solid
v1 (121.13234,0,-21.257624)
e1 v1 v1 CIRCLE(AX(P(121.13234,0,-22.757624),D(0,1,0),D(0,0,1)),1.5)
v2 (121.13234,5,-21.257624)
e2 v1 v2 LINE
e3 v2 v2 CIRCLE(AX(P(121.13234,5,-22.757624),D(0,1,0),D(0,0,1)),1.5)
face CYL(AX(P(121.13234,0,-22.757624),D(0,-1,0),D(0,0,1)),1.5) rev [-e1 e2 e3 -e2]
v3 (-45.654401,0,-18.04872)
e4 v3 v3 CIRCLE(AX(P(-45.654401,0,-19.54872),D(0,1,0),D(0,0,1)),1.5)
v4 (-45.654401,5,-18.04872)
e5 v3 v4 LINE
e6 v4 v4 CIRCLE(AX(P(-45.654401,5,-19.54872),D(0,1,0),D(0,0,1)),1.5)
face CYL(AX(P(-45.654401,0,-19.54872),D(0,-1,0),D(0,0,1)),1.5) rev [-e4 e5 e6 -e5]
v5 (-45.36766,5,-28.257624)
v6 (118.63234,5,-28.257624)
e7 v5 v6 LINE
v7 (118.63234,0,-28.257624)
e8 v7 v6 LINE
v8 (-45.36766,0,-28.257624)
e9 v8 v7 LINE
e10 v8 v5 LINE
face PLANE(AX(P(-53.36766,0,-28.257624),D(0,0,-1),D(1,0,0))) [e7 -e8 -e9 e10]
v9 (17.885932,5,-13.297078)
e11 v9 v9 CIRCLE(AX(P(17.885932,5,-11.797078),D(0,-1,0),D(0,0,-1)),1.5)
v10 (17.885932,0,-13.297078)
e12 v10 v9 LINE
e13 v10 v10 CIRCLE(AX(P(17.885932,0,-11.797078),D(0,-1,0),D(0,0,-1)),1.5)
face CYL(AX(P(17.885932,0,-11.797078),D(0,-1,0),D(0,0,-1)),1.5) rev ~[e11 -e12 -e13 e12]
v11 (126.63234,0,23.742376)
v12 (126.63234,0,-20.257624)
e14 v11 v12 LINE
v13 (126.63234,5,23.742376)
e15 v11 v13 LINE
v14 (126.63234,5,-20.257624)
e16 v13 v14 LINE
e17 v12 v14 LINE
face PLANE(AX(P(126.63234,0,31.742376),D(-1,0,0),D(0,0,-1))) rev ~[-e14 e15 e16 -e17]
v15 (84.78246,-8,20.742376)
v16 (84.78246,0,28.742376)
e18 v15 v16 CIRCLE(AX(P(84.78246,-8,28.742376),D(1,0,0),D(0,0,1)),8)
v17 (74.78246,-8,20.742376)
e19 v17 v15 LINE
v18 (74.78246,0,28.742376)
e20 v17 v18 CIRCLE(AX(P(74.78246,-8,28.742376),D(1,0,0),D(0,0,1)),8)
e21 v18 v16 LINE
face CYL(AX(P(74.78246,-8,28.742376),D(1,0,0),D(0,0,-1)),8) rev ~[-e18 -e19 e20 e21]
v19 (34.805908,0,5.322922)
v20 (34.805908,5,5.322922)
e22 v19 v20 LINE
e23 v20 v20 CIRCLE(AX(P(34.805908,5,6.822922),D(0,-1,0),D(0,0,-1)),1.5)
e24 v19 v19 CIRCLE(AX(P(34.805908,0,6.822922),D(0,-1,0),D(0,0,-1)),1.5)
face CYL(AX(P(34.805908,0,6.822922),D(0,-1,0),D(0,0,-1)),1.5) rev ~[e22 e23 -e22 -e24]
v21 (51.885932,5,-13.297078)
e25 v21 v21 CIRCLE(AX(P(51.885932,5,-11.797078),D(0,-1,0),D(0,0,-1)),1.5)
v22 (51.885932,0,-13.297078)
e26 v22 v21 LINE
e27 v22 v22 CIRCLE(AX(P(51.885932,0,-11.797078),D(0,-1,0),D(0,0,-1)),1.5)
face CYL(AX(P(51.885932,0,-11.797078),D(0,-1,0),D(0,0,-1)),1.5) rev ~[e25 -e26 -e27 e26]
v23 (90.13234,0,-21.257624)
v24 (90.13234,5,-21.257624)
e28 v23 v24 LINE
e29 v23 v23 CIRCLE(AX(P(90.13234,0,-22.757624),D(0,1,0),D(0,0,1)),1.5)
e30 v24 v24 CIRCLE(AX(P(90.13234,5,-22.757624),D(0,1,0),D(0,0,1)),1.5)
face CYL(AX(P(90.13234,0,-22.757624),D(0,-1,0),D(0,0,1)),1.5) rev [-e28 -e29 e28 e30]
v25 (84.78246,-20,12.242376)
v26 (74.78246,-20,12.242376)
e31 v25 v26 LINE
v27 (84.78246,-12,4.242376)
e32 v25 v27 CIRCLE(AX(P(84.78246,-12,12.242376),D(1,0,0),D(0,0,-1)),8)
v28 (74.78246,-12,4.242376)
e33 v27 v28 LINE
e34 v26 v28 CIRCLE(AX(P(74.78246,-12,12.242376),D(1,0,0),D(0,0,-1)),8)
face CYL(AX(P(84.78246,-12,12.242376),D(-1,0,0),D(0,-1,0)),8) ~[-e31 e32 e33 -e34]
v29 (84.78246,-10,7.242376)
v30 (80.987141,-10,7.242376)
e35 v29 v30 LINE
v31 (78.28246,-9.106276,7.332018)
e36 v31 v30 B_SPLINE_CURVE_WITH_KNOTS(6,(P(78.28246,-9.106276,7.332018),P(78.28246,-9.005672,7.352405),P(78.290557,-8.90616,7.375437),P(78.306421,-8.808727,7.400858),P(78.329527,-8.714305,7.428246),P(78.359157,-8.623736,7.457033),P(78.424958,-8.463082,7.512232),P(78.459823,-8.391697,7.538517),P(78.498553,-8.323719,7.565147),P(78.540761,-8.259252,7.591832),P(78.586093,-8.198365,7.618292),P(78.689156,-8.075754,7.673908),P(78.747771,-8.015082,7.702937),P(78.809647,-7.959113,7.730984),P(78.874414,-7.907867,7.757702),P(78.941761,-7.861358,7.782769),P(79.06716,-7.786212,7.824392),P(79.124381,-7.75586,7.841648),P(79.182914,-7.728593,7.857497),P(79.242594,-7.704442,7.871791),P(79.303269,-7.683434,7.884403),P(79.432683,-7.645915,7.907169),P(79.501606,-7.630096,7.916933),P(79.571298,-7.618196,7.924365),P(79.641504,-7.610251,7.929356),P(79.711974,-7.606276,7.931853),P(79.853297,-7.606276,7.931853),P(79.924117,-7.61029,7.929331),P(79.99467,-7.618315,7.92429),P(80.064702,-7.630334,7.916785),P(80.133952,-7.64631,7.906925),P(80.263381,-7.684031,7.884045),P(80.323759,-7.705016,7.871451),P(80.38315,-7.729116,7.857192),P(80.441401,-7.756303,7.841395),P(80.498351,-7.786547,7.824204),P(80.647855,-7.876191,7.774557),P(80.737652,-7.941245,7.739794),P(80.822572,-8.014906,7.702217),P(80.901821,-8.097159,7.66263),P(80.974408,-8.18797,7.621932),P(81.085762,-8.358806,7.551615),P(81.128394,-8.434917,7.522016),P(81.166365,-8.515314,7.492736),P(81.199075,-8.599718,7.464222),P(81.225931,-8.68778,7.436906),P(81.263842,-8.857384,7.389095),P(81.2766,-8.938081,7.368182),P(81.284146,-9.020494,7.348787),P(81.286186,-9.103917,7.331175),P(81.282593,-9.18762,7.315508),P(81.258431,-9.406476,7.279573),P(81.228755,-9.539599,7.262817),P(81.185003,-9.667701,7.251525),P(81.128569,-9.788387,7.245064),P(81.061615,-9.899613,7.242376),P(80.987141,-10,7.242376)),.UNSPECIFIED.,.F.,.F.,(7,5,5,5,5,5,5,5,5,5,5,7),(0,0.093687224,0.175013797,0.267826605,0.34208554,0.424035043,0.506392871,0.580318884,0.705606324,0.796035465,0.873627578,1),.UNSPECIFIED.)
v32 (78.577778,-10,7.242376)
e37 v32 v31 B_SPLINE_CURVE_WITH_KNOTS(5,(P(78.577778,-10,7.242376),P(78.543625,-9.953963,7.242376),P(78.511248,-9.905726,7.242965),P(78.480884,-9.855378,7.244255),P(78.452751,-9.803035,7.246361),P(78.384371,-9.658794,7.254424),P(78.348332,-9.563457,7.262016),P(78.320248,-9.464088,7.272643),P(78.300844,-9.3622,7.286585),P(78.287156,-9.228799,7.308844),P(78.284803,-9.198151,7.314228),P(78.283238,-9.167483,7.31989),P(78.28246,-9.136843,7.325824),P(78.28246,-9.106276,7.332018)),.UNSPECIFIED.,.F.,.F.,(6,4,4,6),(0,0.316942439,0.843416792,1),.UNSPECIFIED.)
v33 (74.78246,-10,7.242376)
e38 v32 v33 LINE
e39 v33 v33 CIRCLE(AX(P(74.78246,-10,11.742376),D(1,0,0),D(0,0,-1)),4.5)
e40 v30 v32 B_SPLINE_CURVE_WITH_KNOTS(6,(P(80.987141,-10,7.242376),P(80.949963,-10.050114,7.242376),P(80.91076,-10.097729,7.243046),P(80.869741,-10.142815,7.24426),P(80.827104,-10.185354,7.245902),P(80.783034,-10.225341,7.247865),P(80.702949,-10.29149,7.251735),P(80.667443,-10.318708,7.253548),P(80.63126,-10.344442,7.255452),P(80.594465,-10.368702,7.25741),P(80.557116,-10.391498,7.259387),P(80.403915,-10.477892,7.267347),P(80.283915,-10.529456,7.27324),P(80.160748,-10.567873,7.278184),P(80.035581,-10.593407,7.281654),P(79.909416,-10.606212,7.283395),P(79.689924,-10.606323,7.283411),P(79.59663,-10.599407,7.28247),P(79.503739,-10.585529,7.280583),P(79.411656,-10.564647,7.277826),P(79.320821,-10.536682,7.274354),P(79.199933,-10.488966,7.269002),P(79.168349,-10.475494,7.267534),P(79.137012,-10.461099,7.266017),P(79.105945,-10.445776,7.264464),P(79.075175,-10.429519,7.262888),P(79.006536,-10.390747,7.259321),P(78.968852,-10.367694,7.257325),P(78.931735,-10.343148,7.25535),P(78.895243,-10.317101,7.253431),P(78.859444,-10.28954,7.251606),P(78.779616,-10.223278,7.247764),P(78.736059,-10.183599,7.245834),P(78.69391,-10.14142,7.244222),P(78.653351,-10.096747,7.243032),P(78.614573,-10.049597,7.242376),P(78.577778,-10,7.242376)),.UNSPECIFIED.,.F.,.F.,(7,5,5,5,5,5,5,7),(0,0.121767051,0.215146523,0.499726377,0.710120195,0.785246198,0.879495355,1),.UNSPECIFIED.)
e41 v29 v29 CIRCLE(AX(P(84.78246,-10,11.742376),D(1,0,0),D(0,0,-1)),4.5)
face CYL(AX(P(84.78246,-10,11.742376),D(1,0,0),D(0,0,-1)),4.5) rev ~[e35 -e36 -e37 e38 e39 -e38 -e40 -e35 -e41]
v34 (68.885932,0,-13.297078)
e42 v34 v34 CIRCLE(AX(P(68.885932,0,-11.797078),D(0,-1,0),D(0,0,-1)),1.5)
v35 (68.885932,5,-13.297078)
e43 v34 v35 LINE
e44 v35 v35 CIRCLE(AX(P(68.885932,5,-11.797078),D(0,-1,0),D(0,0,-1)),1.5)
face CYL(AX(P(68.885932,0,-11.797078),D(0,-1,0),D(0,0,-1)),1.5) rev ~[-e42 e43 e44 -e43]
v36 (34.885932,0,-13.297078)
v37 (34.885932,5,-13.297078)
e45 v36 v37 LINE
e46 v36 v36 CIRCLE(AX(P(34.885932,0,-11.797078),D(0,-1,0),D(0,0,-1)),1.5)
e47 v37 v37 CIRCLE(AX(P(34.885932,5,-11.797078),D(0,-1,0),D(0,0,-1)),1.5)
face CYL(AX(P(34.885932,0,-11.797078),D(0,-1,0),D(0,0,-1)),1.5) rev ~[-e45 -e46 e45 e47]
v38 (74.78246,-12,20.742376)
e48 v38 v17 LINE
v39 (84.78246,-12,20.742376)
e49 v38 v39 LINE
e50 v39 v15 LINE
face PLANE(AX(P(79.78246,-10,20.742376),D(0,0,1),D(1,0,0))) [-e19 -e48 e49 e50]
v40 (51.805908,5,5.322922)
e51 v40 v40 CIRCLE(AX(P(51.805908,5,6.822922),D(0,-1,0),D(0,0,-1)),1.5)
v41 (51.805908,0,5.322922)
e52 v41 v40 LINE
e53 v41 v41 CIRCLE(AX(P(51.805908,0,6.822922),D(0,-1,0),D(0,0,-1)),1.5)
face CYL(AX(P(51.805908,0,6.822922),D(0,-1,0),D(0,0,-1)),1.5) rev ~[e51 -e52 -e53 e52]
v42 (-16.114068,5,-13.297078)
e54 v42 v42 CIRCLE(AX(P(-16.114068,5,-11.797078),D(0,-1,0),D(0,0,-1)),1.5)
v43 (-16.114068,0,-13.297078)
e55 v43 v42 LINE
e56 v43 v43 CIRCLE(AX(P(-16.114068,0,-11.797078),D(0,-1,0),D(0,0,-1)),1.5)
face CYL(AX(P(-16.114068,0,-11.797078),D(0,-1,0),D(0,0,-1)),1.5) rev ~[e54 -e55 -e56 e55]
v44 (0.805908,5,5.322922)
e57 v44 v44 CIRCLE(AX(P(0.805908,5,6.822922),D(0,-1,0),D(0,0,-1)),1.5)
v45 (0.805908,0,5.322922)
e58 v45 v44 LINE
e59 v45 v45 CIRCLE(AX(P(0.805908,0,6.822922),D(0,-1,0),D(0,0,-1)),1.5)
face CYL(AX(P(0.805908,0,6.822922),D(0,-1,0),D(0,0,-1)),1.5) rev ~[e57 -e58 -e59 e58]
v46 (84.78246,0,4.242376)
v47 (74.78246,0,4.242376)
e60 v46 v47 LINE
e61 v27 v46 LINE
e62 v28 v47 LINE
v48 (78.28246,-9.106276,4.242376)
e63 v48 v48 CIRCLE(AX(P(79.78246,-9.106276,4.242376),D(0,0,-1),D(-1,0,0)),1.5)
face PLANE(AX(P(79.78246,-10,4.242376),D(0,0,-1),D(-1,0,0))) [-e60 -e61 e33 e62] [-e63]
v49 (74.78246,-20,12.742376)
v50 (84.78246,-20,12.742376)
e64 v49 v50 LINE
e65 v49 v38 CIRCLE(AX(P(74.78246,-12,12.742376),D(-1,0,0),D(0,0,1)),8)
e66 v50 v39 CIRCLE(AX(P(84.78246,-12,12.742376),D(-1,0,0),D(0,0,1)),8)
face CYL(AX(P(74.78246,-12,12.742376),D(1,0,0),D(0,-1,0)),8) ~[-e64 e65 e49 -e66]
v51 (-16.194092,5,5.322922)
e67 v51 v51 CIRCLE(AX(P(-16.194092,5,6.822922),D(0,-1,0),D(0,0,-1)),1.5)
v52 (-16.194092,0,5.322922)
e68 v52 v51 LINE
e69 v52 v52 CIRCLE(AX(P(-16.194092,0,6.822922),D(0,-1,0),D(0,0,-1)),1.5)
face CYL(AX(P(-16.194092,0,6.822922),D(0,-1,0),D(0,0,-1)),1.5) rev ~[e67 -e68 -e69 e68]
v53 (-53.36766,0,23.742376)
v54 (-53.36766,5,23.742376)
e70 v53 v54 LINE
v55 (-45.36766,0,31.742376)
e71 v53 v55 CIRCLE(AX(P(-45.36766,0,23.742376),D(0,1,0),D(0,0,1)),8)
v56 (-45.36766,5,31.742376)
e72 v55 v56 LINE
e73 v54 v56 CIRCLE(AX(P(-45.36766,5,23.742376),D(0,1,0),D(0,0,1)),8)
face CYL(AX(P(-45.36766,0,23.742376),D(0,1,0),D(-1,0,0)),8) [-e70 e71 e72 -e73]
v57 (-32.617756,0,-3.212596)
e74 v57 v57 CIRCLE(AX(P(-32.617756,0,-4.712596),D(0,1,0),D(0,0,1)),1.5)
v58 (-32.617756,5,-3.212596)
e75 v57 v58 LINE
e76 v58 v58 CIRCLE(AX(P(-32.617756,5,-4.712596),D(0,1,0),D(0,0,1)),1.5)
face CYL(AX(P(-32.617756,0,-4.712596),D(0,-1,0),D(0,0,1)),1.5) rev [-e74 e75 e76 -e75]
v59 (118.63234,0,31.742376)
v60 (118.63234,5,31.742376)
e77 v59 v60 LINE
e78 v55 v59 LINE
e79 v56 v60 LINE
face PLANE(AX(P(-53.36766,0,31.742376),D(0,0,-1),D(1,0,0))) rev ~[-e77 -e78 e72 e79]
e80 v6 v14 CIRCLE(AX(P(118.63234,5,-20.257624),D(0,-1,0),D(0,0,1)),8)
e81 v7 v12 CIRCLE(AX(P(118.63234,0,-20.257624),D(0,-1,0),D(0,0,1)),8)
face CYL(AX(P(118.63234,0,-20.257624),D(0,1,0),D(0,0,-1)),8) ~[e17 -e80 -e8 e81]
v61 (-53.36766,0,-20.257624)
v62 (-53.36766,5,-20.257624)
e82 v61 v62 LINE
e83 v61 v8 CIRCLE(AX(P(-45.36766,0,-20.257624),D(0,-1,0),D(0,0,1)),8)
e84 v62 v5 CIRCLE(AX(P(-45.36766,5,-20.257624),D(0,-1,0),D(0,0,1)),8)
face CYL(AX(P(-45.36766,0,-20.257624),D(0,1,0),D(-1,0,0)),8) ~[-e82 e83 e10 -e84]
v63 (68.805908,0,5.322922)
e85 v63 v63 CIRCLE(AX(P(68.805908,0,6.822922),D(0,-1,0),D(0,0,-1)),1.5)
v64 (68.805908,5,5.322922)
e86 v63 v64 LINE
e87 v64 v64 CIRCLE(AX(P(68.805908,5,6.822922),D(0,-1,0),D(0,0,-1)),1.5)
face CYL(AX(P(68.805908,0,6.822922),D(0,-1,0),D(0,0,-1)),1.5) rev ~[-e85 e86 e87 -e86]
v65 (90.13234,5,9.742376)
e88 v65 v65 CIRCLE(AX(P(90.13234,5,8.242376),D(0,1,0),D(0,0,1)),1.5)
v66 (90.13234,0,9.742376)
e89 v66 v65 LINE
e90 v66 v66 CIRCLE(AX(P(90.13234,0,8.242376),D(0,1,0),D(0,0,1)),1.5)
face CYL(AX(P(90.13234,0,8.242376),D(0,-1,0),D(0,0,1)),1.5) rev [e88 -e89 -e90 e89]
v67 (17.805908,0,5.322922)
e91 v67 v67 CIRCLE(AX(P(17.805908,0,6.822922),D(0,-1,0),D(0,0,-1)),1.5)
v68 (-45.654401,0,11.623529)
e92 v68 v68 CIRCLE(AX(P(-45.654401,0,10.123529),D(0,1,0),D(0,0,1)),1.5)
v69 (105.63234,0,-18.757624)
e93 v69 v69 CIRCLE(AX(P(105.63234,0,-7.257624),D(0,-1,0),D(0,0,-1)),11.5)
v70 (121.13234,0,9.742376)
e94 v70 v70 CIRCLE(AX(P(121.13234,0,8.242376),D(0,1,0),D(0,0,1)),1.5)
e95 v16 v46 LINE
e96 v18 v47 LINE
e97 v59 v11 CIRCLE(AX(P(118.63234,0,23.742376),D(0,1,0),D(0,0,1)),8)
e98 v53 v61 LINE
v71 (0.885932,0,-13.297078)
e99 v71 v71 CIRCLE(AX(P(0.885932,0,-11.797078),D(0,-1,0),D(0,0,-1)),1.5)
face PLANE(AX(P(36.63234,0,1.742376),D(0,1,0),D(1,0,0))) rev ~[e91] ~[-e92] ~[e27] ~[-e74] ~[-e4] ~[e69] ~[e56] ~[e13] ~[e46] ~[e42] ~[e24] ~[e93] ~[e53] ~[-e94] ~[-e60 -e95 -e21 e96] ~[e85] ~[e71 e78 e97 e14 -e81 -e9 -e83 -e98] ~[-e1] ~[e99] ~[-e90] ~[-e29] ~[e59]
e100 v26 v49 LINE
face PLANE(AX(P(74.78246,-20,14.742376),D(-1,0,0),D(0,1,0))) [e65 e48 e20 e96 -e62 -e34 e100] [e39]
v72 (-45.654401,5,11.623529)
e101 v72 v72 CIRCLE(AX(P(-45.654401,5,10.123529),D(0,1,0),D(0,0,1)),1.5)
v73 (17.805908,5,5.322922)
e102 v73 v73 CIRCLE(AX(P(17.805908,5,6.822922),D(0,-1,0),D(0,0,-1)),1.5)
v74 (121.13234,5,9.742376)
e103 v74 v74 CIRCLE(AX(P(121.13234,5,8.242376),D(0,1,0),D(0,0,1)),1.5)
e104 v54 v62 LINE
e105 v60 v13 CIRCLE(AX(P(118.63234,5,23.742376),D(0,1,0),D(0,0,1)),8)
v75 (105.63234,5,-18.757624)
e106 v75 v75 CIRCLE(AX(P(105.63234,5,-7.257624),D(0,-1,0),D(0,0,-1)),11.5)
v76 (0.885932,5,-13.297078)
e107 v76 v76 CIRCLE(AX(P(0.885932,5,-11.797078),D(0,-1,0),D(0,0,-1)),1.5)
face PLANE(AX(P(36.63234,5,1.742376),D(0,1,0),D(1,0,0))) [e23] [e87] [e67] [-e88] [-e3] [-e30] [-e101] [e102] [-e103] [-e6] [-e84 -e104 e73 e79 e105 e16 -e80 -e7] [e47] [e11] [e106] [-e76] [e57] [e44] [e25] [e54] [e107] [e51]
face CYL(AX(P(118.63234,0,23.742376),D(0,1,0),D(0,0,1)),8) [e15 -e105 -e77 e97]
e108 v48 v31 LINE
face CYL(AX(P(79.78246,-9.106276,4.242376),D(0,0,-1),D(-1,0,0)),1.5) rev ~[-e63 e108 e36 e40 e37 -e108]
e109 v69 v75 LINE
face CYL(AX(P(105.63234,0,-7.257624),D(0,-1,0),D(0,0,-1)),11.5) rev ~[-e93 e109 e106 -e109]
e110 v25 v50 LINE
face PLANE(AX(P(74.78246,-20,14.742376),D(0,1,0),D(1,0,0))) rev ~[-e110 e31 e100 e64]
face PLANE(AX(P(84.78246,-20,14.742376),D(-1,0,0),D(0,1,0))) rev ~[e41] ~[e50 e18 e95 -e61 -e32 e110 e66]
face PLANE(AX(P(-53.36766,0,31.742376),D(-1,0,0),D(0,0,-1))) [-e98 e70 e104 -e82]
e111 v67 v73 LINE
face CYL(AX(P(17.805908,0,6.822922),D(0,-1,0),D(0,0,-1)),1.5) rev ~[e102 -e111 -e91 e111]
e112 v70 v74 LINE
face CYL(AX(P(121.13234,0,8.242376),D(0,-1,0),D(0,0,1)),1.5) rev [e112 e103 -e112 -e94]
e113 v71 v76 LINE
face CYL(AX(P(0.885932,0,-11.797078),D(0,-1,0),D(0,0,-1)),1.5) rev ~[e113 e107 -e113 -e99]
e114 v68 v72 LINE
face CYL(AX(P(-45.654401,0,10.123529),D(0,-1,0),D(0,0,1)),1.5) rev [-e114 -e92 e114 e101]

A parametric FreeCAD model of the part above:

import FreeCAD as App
import Part
import Sketcher
Q = App.Units.Quantity


def edges_at(feature, points):
    """Names of the edges that pass closest to the given points."""
    edges = feature.Shape.Edges
    near = lambda p: min(range(len(edges)), key=lambda i: edges[i].distToShape(Part.Vertex(*p))[0])
    return sorted({f"Edge{near(p) + 1}" for p in points})


def add_polygon(sketch, points):
    """Adds a closed chain of lines whose ends are joined by coincident constraints."""
    first, n = sketch.GeometryCount, len(points)
    for a, b in zip(points, points[1:] + points[:1]):
        sketch.addGeometry(Part.LineSegment(App.Vector(*a, 0), App.Vector(*b, 0)), False)
    for i in range(n):
        sketch.addConstraint(Sketcher.Constraint("Coincident", first + i, 2, first + (i + 1) % n, 1))

doc = App.newDocument("Part")
body = doc.addObject("PartDesign::Body", "Body")

# Sketch on XZ plane
sketch1 = body.newObject("Sketcher::SketchObject", "Sketch")
sketch1.AttachmentSupport = (doc.getObject("XZ_Plane"), [""])
sketch1.MapMode = "FlatFace"
add_polygon(sketch1, [(-53.4, -28.3), (-53.4, 31.7), (126.6, 31.7), (126.6, -28.3)])  # lines 0-3
sketch1.addGeometry(Part.Circle(App.Vector(-45.7, 10.1, 0), App.Vector(0, 0, 1), 1.5), False)  # 4
sketch1.addGeometry(Part.Circle(App.Vector(-32.6, -4.7, 0), App.Vector(0, 0, 1), 1.5), False)  # 5
sketch1.addGeometry(Part.Circle(App.Vector(90.1, 8.2, 0), App.Vector(0, 0, 1), 1.5), False)  # 6
sketch1.addGeometry(Part.Circle(App.Vector(121.1, 8.2, 0), App.Vector(0, 0, 1), 1.5), False)  # 7
sketch1.addGeometry(Part.Circle(App.Vector(-45.7, -19.5, 0), App.Vector(0, 0, 1), 1.5), False)  # 8
sketch1.addGeometry(Part.Circle(App.Vector(105.6, -7.3, 0), App.Vector(0, 0, 1), 11), False)  # 9
sketch1.addGeometry(Part.Circle(App.Vector(90.1, -22.8, 0), App.Vector(0, 0, 1), 1.5), False)  # 10
sketch1.addGeometry(Part.Circle(App.Vector(121.1, -22.8, 0), App.Vector(0, 0, 1), 1.5), False)  # 11
sketch1.addConstraint([
    Sketcher.Constraint("Vertical", 0),
    Sketcher.Constraint("Horizontal", 1),
    Sketcher.Constraint("Vertical", 2),
    Sketcher.Constraint("Horizontal", 3),
    Sketcher.Constraint("Equal", 4, 5),
    Sketcher.Constraint("Equal", 5, 6),
    Sketcher.Constraint("Equal", 6, 7),
    Sketcher.Constraint("Equal", 7, 8),
    Sketcher.Constraint("Equal", 8, 10),
    Sketcher.Constraint("Equal", 10, 11),
    Sketcher.Constraint("Horizontal", 6, 3, 7, 3),
    Sketcher.Constraint("Horizontal", 10, 3, 11, 3),
    Sketcher.Constraint("Vertical", 4, 3, 8, 3),
    Sketcher.Constraint("Vertical", 6, 3, 10, 3),
    Sketcher.Constraint("Vertical", 7, 3, 11, 3),
    Sketcher.Constraint("Diameter", 4, Q("3 mm")),
    Sketcher.Constraint("Diameter", 9, Q("22 mm")),
    Sketcher.Constraint("DistanceX", 1, 1, 1, 2, Q("180 mm")),
    Sketcher.Constraint("DistanceY", 0, 1, 0, 2, Q("60 mm")),
    Sketcher.Constraint("DistanceX", 6, 3, 7, 3, Q("31 mm")),
    Sketcher.Constraint("DistanceY", 10, 3, 6, 3, Q("31 mm")),
    Sketcher.Constraint("DistanceX", 9, 3, 1, 2, Q("21 mm")),
    Sketcher.Constraint("DistanceY", 9, 3, 1, 2, Q("39 mm")),
    Sketcher.Constraint("DistanceX", 6, 3, 9, 3, Q("15.5 mm")),
    Sketcher.Constraint("DistanceY", 9, 3, 6, 3, Q("15.5 mm")),
    Sketcher.Constraint("DistanceX", 4, 3, -1, 1, Q("45.654401 mm")),
    Sketcher.Constraint("DistanceY", -1, 1, 4, 3, Q("10.123529 mm")),
    Sketcher.Constraint("DistanceX", -1, 1, 6, 3, Q("90.13234 mm")),
    Sketcher.Constraint("DistanceY", 8, 3, -1, 1, Q("19.54872 mm")),
    Sketcher.Constraint("DistanceY", 5, 3, 6, 3, Q("12.954972 mm")),
    Sketcher.Constraint("DistanceX", 5, 3, -1, 1, Q("32.617756 mm")),
    Sketcher.Constraint("DistanceY", 5, 3, -1, 1, Q("4.712596 mm")),
])
pad1 = body.newObject("PartDesign::Pad", "Pad")
pad1.Profile = sketch1
pad1.Length = 5
pad1.Reversed = True

# Sketch on XZ plane
sketch2 = body.newObject("Sketcher::SketchObject", "Sketch001")
sketch2.AttachmentSupport = (doc.getObject("XZ_Plane"), [""])
sketch2.MapMode = "FlatFace"
sketch2.AttachmentOffset = App.Placement(App.Vector(0, 0, -5), App.Rotation())
add_polygon(sketch2, [(75, -18), (75, 2), (85, 2), (85, -18)])  # lines 0-3
sketch2.addConstraint([
    Sketcher.Constraint("Vertical", 0),
    Sketcher.Constraint("Horizontal", 1),
    Sketcher.Constraint("Vertical", 2),
    Sketcher.Constraint("Horizontal", 3),
    Sketcher.Constraint("DistanceX", 1, 1, 1, 2, Q("10 mm")),
    Sketcher.Constraint("DistanceY", 0, 1, 0, 2, Q("20 mm")),
    Sketcher.Constraint("DistanceX", -1, 1, 0, 2, Q("74.78246 mm")),
    Sketcher.Constraint("DistanceY", -1, 1, 0, 2, Q("1.742376 mm")),
])
pad2 = body.newObject("PartDesign::Pad", "Pad001")
pad2.Profile = sketch2
pad2.Length = 20
pad2.Reversed = True

# Sketch on YZ plane
sketch3 = body.newObject("Sketcher::SketchObject", "Sketch002")
sketch3.AttachmentSupport = (doc.getObject("YZ_Plane"), [""])
sketch3.MapMode = "FlatFace"
sketch3.AttachmentOffset = App.Placement(App.Vector(0, 0, 74.78246), App.Rotation())
sketch3.addGeometry(Part.Circle(App.Vector(15, -8.3, 0), App.Vector(0, 0, 1), 4), False)
sketch3.addConstraint([
    Sketcher.Constraint("Diameter", 0, Q("8 mm")),
    Sketcher.Constraint("DistanceX", -1, 1, 0, 3, Q("15 mm")),
    Sketcher.Constraint("DistanceY", 0, 3, -1, 1, Q("8.257624 mm")),
])
pocket1 = body.newObject("PartDesign::Pocket", "Pocket")
pocket1.Profile = sketch3
pocket1.Length = 20
pocket1.Reversed = True

# Sketch on YZ plane
sketch4 = body.newObject("Sketcher::SketchObject", "Sketch003")
sketch4.AttachmentSupport = (doc.getObject("YZ_Plane"), [""])
sketch4.MapMode = "FlatFace"
sketch4.AttachmentOffset = App.Placement(App.Vector(0, 0, 84.78246), App.Rotation())
add_polygon(sketch4, [(25, -15.3), (5, -15.3), (5, -18.3), (25, -18.3)])  # lines 0-3
add_polygon(sketch4, [(25, 1.7), (5, 1.7), (5, -1.3), (25, -1.3)])  # lines 4-7
sketch4.addConstraint([
    Sketcher.Constraint("Horizontal", 0),
    Sketcher.Constraint("Vertical", 1),
    Sketcher.Constraint("Horizontal", 2),
    Sketcher.Constraint("Vertical", 3),
    Sketcher.Constraint("Horizontal", 4),
    Sketcher.Constraint("Vertical", 5),
    Sketcher.Constraint("Horizontal", 6),
    Sketcher.Constraint("Vertical", 7),
    Sketcher.Constraint("Vertical", 1, 2, 4, 2),
    Sketcher.Constraint("Vertical", 3, 2, 6, 2),
    Sketcher.Constraint("Equal", 3, 5),
    Sketcher.Constraint("DistanceX", 0, 2, 0, 1, Q("20 mm")),
    Sketcher.Constraint("DistanceY", 1, 2, 1, 1, Q("3 mm")),
    Sketcher.Constraint("DistanceX", -1, 1, 0, 2, Q("5 mm")),
    Sketcher.Constraint("DistanceY", 0, 2, 4, 2, Q("17 mm")),
    Sketcher.Constraint("DistanceY", 0, 2, -1, 1, Q("15.257624 mm")),
])
pocket2 = body.newObject("PartDesign::Pocket", "Pocket001")
pocket2.Profile = sketch4
pocket2.Length = 10

# Sketch on YZ plane
sketch5 = body.newObject("Sketcher::SketchObject", "Sketch004")
sketch5.AttachmentSupport = (doc.getObject("YZ_Plane"), [""])
sketch5.MapMode = "FlatFace"
sketch5.AttachmentOffset = App.Placement(App.Vector(0, 0, 84.78246), App.Rotation())
add_polygon(sketch5, [(25, 12), (5, 12), (5, -2), (25, -2)])  # lines 0-3
sketch5.addConstraint([
    Sketcher.Constraint("Horizontal", 0),
    Sketcher.Constraint("Vertical", 1),
    Sketcher.Constraint("Horizontal", 2),
    Sketcher.Constraint("Vertical", 3),
    Sketcher.Constraint("DistanceX", 0, 2, 0, 1, Q("20 mm")),
    Sketcher.Constraint("DistanceY", 1, 2, 1, 1, Q("14 mm")),
    Sketcher.Constraint("DistanceX", -1, 1, 0, 2, Q("5 mm")),
    Sketcher.Constraint("DistanceY", -1, 1, 0, 2, Q("12.242376 mm")),
])
pad3 = body.newObject("PartDesign::Pad", "Pad002")
pad3.Profile = sketch5
pad3.Length = 10
pad3.Reversed = True

# Sketch on YZ plane
sketch6 = body.newObject("Sketcher::SketchObject", "Sketch005")
sketch6.AttachmentSupport = (doc.getObject("YZ_Plane"), [""])
sketch6.MapMode = "FlatFace"
sketch6.AttachmentOffset = App.Placement(App.Vector(0, 0, 84.78246), App.Rotation())
sketch6.addGeometry(Part.Circle(App.Vector(15, 5.2, 0), App.Vector(0, 0, 1), 4), False)
sketch6.addConstraint([
    Sketcher.Constraint("Diameter", 0, Q("8 mm")),
    Sketcher.Constraint("DistanceX", -1, 1, 0, 3, Q("15 mm")),
    Sketcher.Constraint("DistanceY", -1, 1, 0, 3, Q("5.242376 mm")),
])
pocket3 = body.newObject("PartDesign::Pocket", "Pocket002")
pocket3.Profile = sketch6
pocket3.Length = 10

# Sketch on YZ plane
sketch7 = body.newObject("Sketcher::SketchObject", "Sketch006")
sketch7.AttachmentSupport = (doc.getObject("YZ_Plane"), [""])
sketch7.MapMode = "FlatFace"
sketch7.AttachmentOffset = App.Placement(App.Vector(0, 0, 84.78246), App.Rotation())
add_polygon(sketch7, [(25, -2), (5, -2), (5, -15), (25, -15)])  # lines 0-3
sketch7.addConstraint([
    Sketcher.Constraint("Horizontal", 0),
    Sketcher.Constraint("Vertical", 1),
    Sketcher.Constraint("Horizontal", 2),
    Sketcher.Constraint("Vertical", 3),
    Sketcher.Constraint("DistanceX", 0, 2, 0, 1, Q("20 mm")),
    Sketcher.Constraint("DistanceY", 1, 2, 1, 1, Q("13.5 mm")),
    Sketcher.Constraint("DistanceX", -1, 1, 0, 2, Q("5 mm")),
    Sketcher.Constraint("DistanceY", 0, 2, -1, 1, Q("1.757624 mm")),
])
pocket4 = body.newObject("PartDesign::Pocket", "Pocket003")
pocket4.Profile = sketch7
pocket4.Length = 10

# Sketch on YZ plane
sketch8 = body.newObject("Sketcher::SketchObject", "Sketch007")
sketch8.AttachmentSupport = (doc.getObject("YZ_Plane"), [""])
sketch8.MapMode = "FlatFace"
sketch8.AttachmentOffset = App.Placement(App.Vector(0, 0, 84.78246), App.Rotation())
add_polygon(sketch8, [(25, -0.8), (5, -0.8), (5, -1.8), (25, -1.8)])  # lines 0-3
sketch8.addConstraint([
    Sketcher.Constraint("Horizontal", 0),
    Sketcher.Constraint("Vertical", 1),
    Sketcher.Constraint("Horizontal", 2),
    Sketcher.Constraint("Vertical", 3),
    Sketcher.Constraint("DistanceX", 0, 2, 0, 1, Q("20 mm")),
    Sketcher.Constraint("DistanceY", 1, 2, 1, 1, Q("1 mm")),
    Sketcher.Constraint("DistanceX", -1, 1, 0, 2, Q("5 mm")),
    Sketcher.Constraint("DistanceY", 0, 2, -1, 1, Q("0.757624 mm")),
])
pocket5 = body.newObject("PartDesign::Pocket", "Pocket004")
pocket5.Profile = sketch8
pocket5.Length = 10
doc.recompute()

fillet = body.newObject("PartDesign::Fillet", "Fillet")
fillet.Base = (pocket5, edges_at(pocket5, [(79.782, 25, -0.758), (79.782, 25, 12.242)]))
fillet.Radius = 5

# Sketch on XZ plane
sketch9 = body.newObject("Sketcher::SketchObject", "Sketch008")
sketch9.AttachmentSupport = (doc.getObject("XZ_Plane"), [""])
sketch9.MapMode = "FlatFace"
sketch9.AttachmentOffset = App.Placement(App.Vector(0, 0, -5), App.Rotation())
add_polygon(sketch9, [(75, -3), (75, 15), (85, 15), (85, -3)])  # lines 0-3
sketch9.addConstraint([
    Sketcher.Constraint("Vertical", 0),
    Sketcher.Constraint("Horizontal", 1),
    Sketcher.Constraint("Vertical", 2),
    Sketcher.Constraint("Horizontal", 3),
    Sketcher.Constraint("DistanceX", 1, 1, 1, 2, Q("10 mm")),
    Sketcher.Constraint("DistanceY", 0, 1, 0, 2, Q("18 mm")),
    Sketcher.Constraint("DistanceX", -1, 1, 0, 2, Q("74.78246 mm")),
    Sketcher.Constraint("DistanceY", -1, 1, 0, 2, Q("14.742376 mm")),
])
pad4 = body.newObject("PartDesign::Pad", "Pad003")
pad4.Profile = sketch9
pad4.Length = 20
pad4.Reversed = True

# Sketch on YZ plane
sketch10 = body.newObject("Sketcher::SketchObject", "Sketch009")
sketch10.AttachmentSupport = (doc.getObject("YZ_Plane"), [""])
sketch10.MapMode = "FlatFace"
sketch10.AttachmentOffset = App.Placement(App.Vector(0, 0, 84.78246), App.Rotation())
sketch10.addGeometry(Part.Circle(App.Vector(15, 5.7, 0), App.Vector(0, 0, 1), 4), False)
sketch10.addConstraint([
    Sketcher.Constraint("Diameter", 0, Q("8 mm")),
    Sketcher.Constraint("DistanceX", -1, 1, 0, 3, Q("15 mm")),
    Sketcher.Constraint("DistanceY", -1, 1, 0, 3, Q("5.742376 mm")),
])
pocket6 = body.newObject("PartDesign::Pocket", "Pocket005")
pocket6.Profile = sketch10
pocket6.Length = 20
doc.recompute()

fillet2 = body.newObject("PartDesign::Fillet", "Fillet001")
fillet2.Base = (pocket6, edges_at(pocket6, [(79.782, 5, 14.742)]))
fillet2.Radius = 8

# Sketch on XZ plane
sketch11 = body.newObject("Sketcher::SketchObject", "Sketch010")
sketch11.AttachmentSupport = (doc.getObject("XZ_Plane"), [""])
sketch11.MapMode = "FlatFace"
sketch11.AttachmentOffset = App.Placement(App.Vector(0, 0, -5), App.Rotation())
add_polygon(sketch11, [(73.5, -3.3), (73.5, -1.8), (84.8, -1.8), (84.8, -3.3)])  # lines 0-3
sketch11.addConstraint([
    Sketcher.Constraint("Vertical", 0),
    Sketcher.Constraint("Horizontal", 1),
    Sketcher.Constraint("Vertical", 2),
    Sketcher.Constraint("Horizontal", 3),
    Sketcher.Constraint("DistanceY", 0, 1, 0, 2, Q("1.5 mm")),
    Sketcher.Constraint("DistanceX", 1, 1, 1, 2, Q("11.311174 mm")),
    Sketcher.Constraint("DistanceX", -1, 1, 1, 2, Q("84.78246 mm")),
    Sketcher.Constraint("DistanceY", 0, 2, -1, 1, Q("1.757624 mm")),
])
pocket7 = body.newObject("PartDesign::Pocket", "Pocket006")
pocket7.Profile = sketch11
pocket7.Length = 20
doc.recompute()

fillet3 = body.newObject("PartDesign::Fillet", "Fillet002")
fillet3.Base = (pocket7, edges_at(pocket7, [(79.782, 25, 14.742), (79.782, 25, -1.758)]))
fillet3.Radius = 8

# Sketch on XZ plane
sketch12 = body.newObject("Sketcher::SketchObject", "Sketch011")
sketch12.AttachmentSupport = (doc.getObject("XZ_Plane"), [""])
sketch12.MapMode = "FlatFace"
sketch12.AttachmentOffset = App.Placement(App.Vector(0, 0, -5), App.Rotation())
add_polygon(sketch12, [(75, -2), (75, 15), (85, 15), (85, -2)])  # lines 0-3
sketch12.addConstraint([
    Sketcher.Constraint("Vertical", 0),
    Sketcher.Constraint("Horizontal", 1),
    Sketcher.Constraint("Vertical", 2),
    Sketcher.Constraint("Horizontal", 3),
    Sketcher.Constraint("DistanceX", 1, 1, 1, 2, Q("10 mm")),
    Sketcher.Constraint("DistanceY", 0, 1, 0, 2, Q("16.5 mm")),
    Sketcher.Constraint("DistanceX", -1, 1, 0, 2, Q("74.78246 mm")),
    Sketcher.Constraint("DistanceY", -1, 1, 0, 2, Q("14.742376 mm")),
])
pad5 = body.newObject("PartDesign::Pad", "Pad004")
pad5.Profile = sketch12
pad5.Length = 25

# Sketch on XZ plane
sketch13 = body.newObject("Sketcher::SketchObject", "Sketch012")
sketch13.AttachmentSupport = (doc.getObject("XZ_Plane"), [""])
sketch13.MapMode = "FlatFace"
sketch13.AttachmentOffset = App.Placement(App.Vector(0, 0, -5), App.Rotation())
add_polygon(sketch13, [(58, -8), (58, 25), (86, 25), (86, -8)])  # lines 0-3
sketch13.addConstraint([
    Sketcher.Constraint("Vertical", 0),
    Sketcher.Constraint("Horizontal", 1),
    Sketcher.Constraint("Vertical", 2),
    Sketcher.Constraint("Horizontal", 3),
    Sketcher.Constraint("DistanceX", 1, 1, 1, 2, Q("27.629978 mm")),
    Sketcher.Constraint("DistanceY", 0, 1, 0, 2, Q("33.342762 mm")),
    Sketcher.Constraint("DistanceX", -1, 1, 0, 2, Q("58.148082 mm")),
    Sketcher.Constraint("DistanceY", -1, 1, 0, 2, Q("25.202336 mm")),
])
pocket8 = body.newObject("PartDesign::Pocket", "Pocket007")
pocket8.Profile = sketch13
pocket8.Length = 20

# Sketch on XY plane
sketch14 = body.newObject("Sketcher::SketchObject", "Sketch013")
sketch14.AttachmentSupport = (doc.getObject("XY_Plane"), [""])
sketch14.MapMode = "FlatFace"
sketch14.AttachmentOffset = App.Placement(App.Vector(0, 0, 14.742376), App.Rotation())
add_polygon(sketch14, [(75, 0), (75, -20), (85, -20), (85, 0)])  # lines 0-3
sketch14.addConstraint([
    Sketcher.Constraint("Vertical", 0),
    Sketcher.Constraint("Horizontal", 1),
    Sketcher.Constraint("Vertical", 2),
    Sketcher.Constraint("Horizontal", 3),
    Sketcher.Constraint("PointOnObject", 2, 2, -1),
    Sketcher.Constraint("DistanceX", 1, 1, 1, 2, Q("10 mm")),
    Sketcher.Constraint("DistanceY", 0, 2, 0, 1, Q("20 mm")),
    Sketcher.Constraint("DistanceX", -1, 1, 0, 2, Q("74.78246 mm")),
])
pad6 = body.newObject("PartDesign::Pad", "Pad005")
pad6.Profile = sketch14
pad6.Length = 6

# Sketch on XY plane
sketch15 = body.newObject("Sketcher::SketchObject", "Sketch014")
sketch15.AttachmentSupport = (doc.getObject("XY_Plane"), [""])
sketch15.MapMode = "FlatFace"
sketch15.AttachmentOffset = App.Placement(App.Vector(0, 0, -1.757624), App.Rotation())
add_polygon(sketch15, [(85, 0), (85, -20), (75, -20), (75, 0)])  # lines 0-3
sketch15.addConstraint([
    Sketcher.Constraint("Vertical", 0),
    Sketcher.Constraint("Horizontal", 1),
    Sketcher.Constraint("Vertical", 2),
    Sketcher.Constraint("Horizontal", 3),
    Sketcher.Constraint("PointOnObject", 2, 2, -1),
    Sketcher.Constraint("DistanceX", 1, 2, 1, 1, Q("10 mm")),
    Sketcher.Constraint("DistanceY", 0, 2, 0, 1, Q("20 mm")),
    Sketcher.Constraint("DistanceX", -1, 1, 0, 2, Q("84.78246 mm")),
])
pocket9 = body.newObject("PartDesign::Pocket", "Pocket008")
pocket9.Profile = sketch15
pocket9.Length = 6
pocket9.Reversed = True

# Sketch on YZ plane
sketch16 = body.newObject("Sketcher::SketchObject", "Sketch015")
sketch16.AttachmentSupport = (doc.getObject("YZ_Plane"), [""])
sketch16.MapMode = "FlatFace"
sketch16.AttachmentOffset = App.Placement(App.Vector(0, 0, 84.78246), App.Rotation())
sketch16.addGeometry(Part.Circle(App.Vector(-10, 11.7, 0), App.Vector(0, 0, 1), 4), False)
sketch16.addConstraint([
    Sketcher.Constraint("Diameter", 0, Q("8 mm")),
    Sketcher.Constraint("DistanceX", 0, 3, -1, 1, Q("10 mm")),
    Sketcher.Constraint("DistanceY", -1, 1, 0, 3, Q("11.742376 mm")),
])
pocket10 = body.newObject("PartDesign::Pocket", "Pocket009")
pocket10.Profile = sketch16
pocket10.Length = 10
doc.recompute()

fillet4 = body.newObject("PartDesign::Fillet", "Fillet003")
fillet4.Base = (pocket10, edges_at(pocket10, [(79.782, 0, 20.742), (79.782, -20, 20.742), (79.782, -20, 4.242)]))
fillet4.Radius = 8

# Sketch on XZ plane
sketch17 = body.newObject("Sketcher::SketchObject", "Sketch016")
sketch17.AttachmentSupport = (doc.getObject("XZ_Plane"), [""])
sketch17.MapMode = "FlatFace"
sketch17.addGeometry([
    Part.Circle(App.Vector(-16.2, 6.8, 0), App.Vector(0, 0, 1), 1.5),  # 0
    Part.Circle(App.Vector(-16.1, -11.8, 0), App.Vector(0, 0, 1), 1.5),  # 1
    Part.Circle(App.Vector(0.8, 6.8, 0), App.Vector(0, 0, 1), 1.5),  # 2
    Part.Circle(App.Vector(0.9, -11.8, 0), App.Vector(0, 0, 1), 1.5),  # 3
    Part.Circle(App.Vector(17.8, 6.8, 0), App.Vector(0, 0, 1), 1.5),  # 4
    Part.Circle(App.Vector(17.9, -11.8, 0), App.Vector(0, 0, 1), 1.5),  # 5
    Part.Circle(App.Vector(34.8, 6.8, 0), App.Vector(0, 0, 1), 1.5),  # 6
    Part.Circle(App.Vector(34.9, -11.8, 0), App.Vector(0, 0, 1), 1.5),  # 7
    Part.Circle(App.Vector(51.8, 6.8, 0), App.Vector(0, 0, 1), 1.5),  # 8
    Part.Circle(App.Vector(51.9, -11.8, 0), App.Vector(0, 0, 1), 1.5),  # 9
    Part.Circle(App.Vector(68.8, 6.8, 0), App.Vector(0, 0, 1), 1.5),  # 10
    Part.Circle(App.Vector(68.9, -11.8, 0), App.Vector(0, 0, 1), 1.5),  # 11
], False)
sketch17.addConstraint([
    Sketcher.Constraint("Equal", 0, 1),
    Sketcher.Constraint("Equal", 1, 2),
    Sketcher.Constraint("Equal", 2, 3),
    Sketcher.Constraint("Equal", 3, 4),
    Sketcher.Constraint("Equal", 4, 5),
    Sketcher.Constraint("Equal", 5, 6),
    Sketcher.Constraint("Equal", 6, 7),
    Sketcher.Constraint("Equal", 7, 8),
    Sketcher.Constraint("Equal", 8, 9),
    Sketcher.Constraint("Equal", 9, 10),
    Sketcher.Constraint("Equal", 10, 11),
    Sketcher.Constraint("Horizontal", 0, 3, 2, 3),
    Sketcher.Constraint("Horizontal", 1, 3, 3, 3),
    Sketcher.Constraint("Horizontal", 2, 3, 4, 3),
    Sketcher.Constraint("Horizontal", 3, 3, 5, 3),
    Sketcher.Constraint("Horizontal", 4, 3, 6, 3),
    Sketcher.Constraint("Horizontal", 5, 3, 7, 3),
    Sketcher.Constraint("Horizontal", 6, 3, 8, 3),
    Sketcher.Constraint("Horizontal", 7, 3, 9, 3),
    Sketcher.Constraint("Horizontal", 8, 3, 10, 3),
    Sketcher.Constraint("Horizontal", 9, 3, 11, 3),
    Sketcher.Constraint("Diameter", 0, Q("3 mm")),
    Sketcher.Constraint("DistanceX", 0, 3, 2, 3, Q("17 mm")),
    Sketcher.Constraint("DistanceX", 1, 3, 3, 3, Q("17 mm")),
    Sketcher.Constraint("DistanceX", 2, 3, 4, 3, Q("17 mm")),
    Sketcher.Constraint("DistanceX", 3, 3, 5, 3, Q("17 mm")),
    Sketcher.Constraint("DistanceX", 4, 3, 6, 3, Q("17 mm")),
    Sketcher.Constraint("DistanceX", 5, 3, 7, 3, Q("17 mm")),
    Sketcher.Constraint("DistanceX", 6, 3, 8, 3, Q("17 mm")),
    Sketcher.Constraint("DistanceX", 7, 3, 9, 3, Q("17 mm")),
    Sketcher.Constraint("DistanceX", 8, 3, 10, 3, Q("17 mm")),
    Sketcher.Constraint("DistanceX", 9, 3, 11, 3, Q("17 mm")),
    Sketcher.Constraint("DistanceY", 1, 3, 0, 3, Q("18.62 mm")),
    Sketcher.Constraint("DistanceX", 0, 3, -1, 1, Q("16.194092 mm")),
    Sketcher.Constraint("DistanceY", -1, 1, 0, 3, Q("6.822922 mm")),
    Sketcher.Constraint("DistanceX", 1, 3, -1, 1, Q("16.114068 mm")),
])
pocket11 = body.newObject("PartDesign::Pocket", "Pocket010")
pocket11.Profile = sketch17
pocket11.Length = 10

# Sketch on YZ plane
sketch18 = body.newObject("Sketcher::SketchObject", "Sketch017")
sketch18.AttachmentSupport = (doc.getObject("YZ_Plane"), [""])
sketch18.MapMode = "FlatFace"
sketch18.AttachmentOffset = App.Placement(App.Vector(0, 0, 84.78246), App.Rotation())
sketch18.addGeometry(Part.Circle(App.Vector(-10, 11.7, 0), App.Vector(0, 0, 1), 4.5), False)
sketch18.addConstraint([
    Sketcher.Constraint("Diameter", 0, Q("9 mm")),
    Sketcher.Constraint("DistanceX", 0, 3, -1, 1, Q("10 mm")),
    Sketcher.Constraint("DistanceY", -1, 1, 0, 3, Q("11.742376 mm")),
])
pocket12 = body.newObject("PartDesign::Pocket", "Pocket011")
pocket12.Profile = sketch18
pocket12.Length = 10

# Sketch on XZ plane
sketch19 = body.newObject("Sketcher::SketchObject", "Sketch018")
sketch19.AttachmentSupport = (doc.getObject("XZ_Plane"), [""])
sketch19.MapMode = "FlatFace"
sketch19.addGeometry(Part.Circle(App.Vector(106, -7, 0), App.Vector(0, 0, 1), 12), False)
sketch19.addConstraint([
    Sketcher.Constraint("Diameter", 0, Q("23 mm")),
    Sketcher.Constraint("DistanceX", -1, 1, 0, 3, Q("105.63234 mm")),
    Sketcher.Constraint("DistanceY", 0, 3, -1, 1, Q("7.257624 mm")),
])
pocket13 = body.newObject("PartDesign::Pocket", "Pocket012")
pocket13.Profile = sketch19
pocket13.Length = 10

# Sketch on XY plane
sketch20 = body.newObject("Sketcher::SketchObject", "Sketch019")
sketch20.AttachmentSupport = (doc.getObject("XY_Plane"), [""])
sketch20.MapMode = "FlatFace"
sketch20.AttachmentOffset = App.Placement(App.Vector(0, 0, 4.242376), App.Rotation())
sketch20.addGeometry(Part.Circle(App.Vector(79.8, -9.1, 0), App.Vector(0, 0, 1), 1.5), False)
sketch20.addConstraint([
    Sketcher.Constraint("Diameter", 0, Q("3 mm")),
    Sketcher.Constraint("DistanceX", -1, 1, 0, 3, Q("79.78246 mm")),
    Sketcher.Constraint("DistanceY", 0, 3, -1, 1, Q("9.106276 mm")),
])
pocket14 = body.newObject("PartDesign::Pocket", "Pocket013")
pocket14.Profile = sketch20
pocket14.Length = 10
pocket14.Reversed = True
doc.recompute()

fillet5 = body.newObject("PartDesign::Fillet", "Fillet004")
fillet5.Base = (pocket14, edges_at(pocket14, [
    (126.632, 2.5, -28.258),
    (126.632, 2.5, 31.742),
    (-53.368, 2.5, 31.742),
    (-53.368, 2.5, -28.258),
]))
fillet5.Radius = 8

doc.recompute()
